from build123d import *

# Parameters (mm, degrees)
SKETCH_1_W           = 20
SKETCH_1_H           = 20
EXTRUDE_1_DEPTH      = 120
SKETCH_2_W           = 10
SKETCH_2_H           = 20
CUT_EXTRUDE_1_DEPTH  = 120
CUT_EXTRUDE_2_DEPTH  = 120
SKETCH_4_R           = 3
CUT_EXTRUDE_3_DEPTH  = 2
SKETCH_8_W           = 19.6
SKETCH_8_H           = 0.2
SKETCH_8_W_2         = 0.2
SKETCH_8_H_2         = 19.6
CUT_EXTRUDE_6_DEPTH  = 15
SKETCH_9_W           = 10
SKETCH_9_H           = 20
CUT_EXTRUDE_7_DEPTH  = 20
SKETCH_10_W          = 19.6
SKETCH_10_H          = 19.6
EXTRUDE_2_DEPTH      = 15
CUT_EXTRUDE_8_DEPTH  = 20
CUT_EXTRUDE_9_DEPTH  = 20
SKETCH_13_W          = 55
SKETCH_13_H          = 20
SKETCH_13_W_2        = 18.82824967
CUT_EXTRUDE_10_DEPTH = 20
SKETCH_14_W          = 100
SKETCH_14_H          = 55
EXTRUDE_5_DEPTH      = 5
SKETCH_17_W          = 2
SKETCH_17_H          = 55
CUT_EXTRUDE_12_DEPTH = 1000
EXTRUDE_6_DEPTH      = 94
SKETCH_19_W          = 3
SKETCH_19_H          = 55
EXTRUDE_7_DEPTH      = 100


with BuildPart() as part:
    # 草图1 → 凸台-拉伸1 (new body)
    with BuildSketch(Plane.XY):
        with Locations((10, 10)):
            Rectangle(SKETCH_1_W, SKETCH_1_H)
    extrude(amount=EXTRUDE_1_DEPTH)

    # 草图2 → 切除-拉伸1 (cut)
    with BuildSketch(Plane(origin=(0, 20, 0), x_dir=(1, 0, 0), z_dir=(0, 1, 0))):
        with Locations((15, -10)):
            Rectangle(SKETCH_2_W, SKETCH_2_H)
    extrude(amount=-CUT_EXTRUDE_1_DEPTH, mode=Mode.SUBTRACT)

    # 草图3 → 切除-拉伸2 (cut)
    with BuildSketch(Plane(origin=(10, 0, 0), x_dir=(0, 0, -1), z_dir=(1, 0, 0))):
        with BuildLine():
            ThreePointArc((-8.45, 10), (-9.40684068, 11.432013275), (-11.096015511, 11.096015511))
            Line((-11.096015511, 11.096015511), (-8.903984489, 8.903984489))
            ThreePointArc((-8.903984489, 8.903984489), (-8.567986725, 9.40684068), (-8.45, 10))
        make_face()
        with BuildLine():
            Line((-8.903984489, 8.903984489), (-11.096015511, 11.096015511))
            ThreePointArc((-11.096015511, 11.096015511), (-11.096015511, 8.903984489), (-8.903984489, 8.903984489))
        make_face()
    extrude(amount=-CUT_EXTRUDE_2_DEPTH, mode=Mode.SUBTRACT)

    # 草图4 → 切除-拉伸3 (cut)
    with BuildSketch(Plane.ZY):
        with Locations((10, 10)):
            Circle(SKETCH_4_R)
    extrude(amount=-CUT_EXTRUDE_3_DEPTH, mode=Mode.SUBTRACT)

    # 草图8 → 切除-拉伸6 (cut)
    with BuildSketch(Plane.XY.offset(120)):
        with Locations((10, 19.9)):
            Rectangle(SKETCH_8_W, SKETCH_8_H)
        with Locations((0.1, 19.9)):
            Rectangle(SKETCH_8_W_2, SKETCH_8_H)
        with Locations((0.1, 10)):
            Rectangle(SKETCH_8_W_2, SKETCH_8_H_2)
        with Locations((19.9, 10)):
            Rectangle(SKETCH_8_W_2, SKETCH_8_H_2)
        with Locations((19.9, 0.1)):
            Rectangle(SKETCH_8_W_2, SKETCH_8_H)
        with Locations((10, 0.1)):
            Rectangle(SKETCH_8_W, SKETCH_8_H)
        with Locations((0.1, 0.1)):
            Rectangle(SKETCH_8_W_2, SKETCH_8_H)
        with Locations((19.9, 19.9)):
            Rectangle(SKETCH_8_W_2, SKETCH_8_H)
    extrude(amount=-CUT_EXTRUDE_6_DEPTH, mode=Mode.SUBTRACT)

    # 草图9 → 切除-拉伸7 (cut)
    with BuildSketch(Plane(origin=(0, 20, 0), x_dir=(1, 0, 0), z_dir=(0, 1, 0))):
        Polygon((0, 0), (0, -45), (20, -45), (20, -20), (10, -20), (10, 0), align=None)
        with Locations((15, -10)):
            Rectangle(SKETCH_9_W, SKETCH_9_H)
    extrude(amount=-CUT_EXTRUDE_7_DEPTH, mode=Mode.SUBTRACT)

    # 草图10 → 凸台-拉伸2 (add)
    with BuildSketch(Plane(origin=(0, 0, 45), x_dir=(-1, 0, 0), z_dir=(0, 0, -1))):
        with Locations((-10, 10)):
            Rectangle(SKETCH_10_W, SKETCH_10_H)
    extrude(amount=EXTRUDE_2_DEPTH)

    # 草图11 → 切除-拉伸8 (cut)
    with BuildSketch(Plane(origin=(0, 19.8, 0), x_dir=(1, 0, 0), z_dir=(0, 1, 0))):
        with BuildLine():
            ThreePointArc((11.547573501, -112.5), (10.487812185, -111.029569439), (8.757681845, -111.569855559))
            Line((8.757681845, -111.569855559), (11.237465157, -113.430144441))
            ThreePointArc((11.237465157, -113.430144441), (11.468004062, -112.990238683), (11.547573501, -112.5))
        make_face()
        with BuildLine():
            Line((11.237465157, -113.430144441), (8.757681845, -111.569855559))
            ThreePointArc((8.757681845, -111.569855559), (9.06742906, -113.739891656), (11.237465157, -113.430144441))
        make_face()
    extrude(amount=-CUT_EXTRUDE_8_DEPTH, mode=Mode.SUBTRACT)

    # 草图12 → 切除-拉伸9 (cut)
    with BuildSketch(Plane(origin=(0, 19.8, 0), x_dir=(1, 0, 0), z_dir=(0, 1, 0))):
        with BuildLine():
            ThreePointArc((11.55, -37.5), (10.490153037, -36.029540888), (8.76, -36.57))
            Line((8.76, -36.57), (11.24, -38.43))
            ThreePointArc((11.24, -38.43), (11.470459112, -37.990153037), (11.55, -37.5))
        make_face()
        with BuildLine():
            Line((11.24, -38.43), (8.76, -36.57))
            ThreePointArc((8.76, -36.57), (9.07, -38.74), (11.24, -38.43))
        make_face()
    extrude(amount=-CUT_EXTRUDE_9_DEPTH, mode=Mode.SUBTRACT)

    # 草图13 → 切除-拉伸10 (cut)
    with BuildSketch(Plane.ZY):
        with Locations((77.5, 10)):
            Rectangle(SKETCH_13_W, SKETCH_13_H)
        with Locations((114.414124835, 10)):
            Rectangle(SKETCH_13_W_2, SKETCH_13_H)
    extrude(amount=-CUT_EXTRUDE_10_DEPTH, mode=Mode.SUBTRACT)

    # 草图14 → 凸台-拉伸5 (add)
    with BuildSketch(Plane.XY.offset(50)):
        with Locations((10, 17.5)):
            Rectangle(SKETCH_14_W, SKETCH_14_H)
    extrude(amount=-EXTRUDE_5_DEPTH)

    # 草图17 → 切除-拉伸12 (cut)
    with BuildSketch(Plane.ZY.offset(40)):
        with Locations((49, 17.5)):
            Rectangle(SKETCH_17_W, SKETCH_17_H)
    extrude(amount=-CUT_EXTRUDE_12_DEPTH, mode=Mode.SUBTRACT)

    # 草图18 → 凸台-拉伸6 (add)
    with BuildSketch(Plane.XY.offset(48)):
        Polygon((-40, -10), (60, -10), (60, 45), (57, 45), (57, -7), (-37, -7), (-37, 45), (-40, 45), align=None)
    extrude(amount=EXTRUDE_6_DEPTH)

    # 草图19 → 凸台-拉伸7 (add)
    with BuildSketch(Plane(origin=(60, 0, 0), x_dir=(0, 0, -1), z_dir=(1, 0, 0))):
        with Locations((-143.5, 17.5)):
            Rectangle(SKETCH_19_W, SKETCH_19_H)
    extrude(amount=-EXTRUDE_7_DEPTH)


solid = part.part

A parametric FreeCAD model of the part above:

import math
import FreeCAD as App
import Part
import Sketcher
from FreeCAD import Vector
Q = App.Units.Quantity


def add_polygon(sketch, points):
    """Adds a closed chain of lines whose ends are joined by coincident constraints."""
    first, n = sketch.GeometryCount, len(points)
    for a, b in zip(points, points[1:] + points[:1]):
        sketch.addGeometry(Part.LineSegment(App.Vector(*a, 0), App.Vector(*b, 0)), False)
    for i in range(n):
        sketch.addConstraint(Sketcher.Constraint("Coincident", first + i, 2, first + (i + 1) % n, 1))

doc = App.newDocument("Part")
params = doc.addObject("Spreadsheet::Sheet", "Params")
for row, (alias, value) in enumerate([
    ("sketch1_width", "20 mm"),
    ("pad1_length", "120 mm"),
    ("sketch2_width", "10 mm"),
    ("sketch2_height", "20 mm"),
    ("pocket1_length", "120 mm"),
    ("sketch3_radius", "1.55 mm"),
    ("pocket2_length", "120 mm"),
    ("sketch4_diameter", "6 mm"),
    ("pocket3_length", "2 mm"),
    ("sketch5_width", "20 mm"),
    ("sketch5_width2", "19.6 mm"),
    ("pocket4_length", "15 mm"),
    ("sketch6_width", "20 mm"),
    ("sketch6_height", "45 mm"),
    ("pocket5_length", "20 mm"),
    ("sketch7_width", "19.6 mm"),
    ("pad2_length", "15 mm"),
    ("sketch8_radius", "1.55 mm"),
    ("pocket6_length", "20 mm"),
    ("sketch9_radius", "1.55 mm"),
    ("pocket7_length", "20 mm"),
    ("sketch10_width", "20 mm"),
    ("pocket8_length", "20 mm"),
    ("sketch11_width", "100 mm"),
    ("sketch11_height", "55 mm"),
    ("pad3_length", "5 mm"),
    ("sketch12_width", "55 mm"),
    ("sketch12_height", "2 mm"),
    ("pocket9_length", "1000 mm"),
    ("sketch13_width", "100 mm"),
    ("sketch13_width2", "3 mm"),
    ("sketch13_height", "55 mm"),
    ("sketch13_height2", "52 mm"),
    ("pad4_length", "94 mm"),
    ("sketch14_width", "55 mm"),
    ("sketch14_height", "3 mm"),
    ("pad5_length", "100 mm"),
], start=1):
    params.set(f"A{row}", alias)
    params.set(f"B{row}", "=" + value)
    params.setAlias(f"B{row}", alias)

body = doc.addObject("PartDesign::Body", "Body")

# Sketch on XY plane
sketch1 = doc.addObject("Sketcher::SketchObject", "Sketch")
body.addObject(sketch1)
sketch1.AttachmentSupport = (doc.XY_Plane, [""])
sketch1.MapMode = "FlatFace"
add_polygon(sketch1, [(0, 20), (0, 0), (20, 0), (20, 20)])  # lines 0-3
sketch1.addConstraint([
    Sketcher.Constraint("Vertical", 0),
    Sketcher.Constraint("Horizontal", 1),
    Sketcher.Constraint("Vertical", 2),
    Sketcher.Constraint("Horizontal", 3),
    Sketcher.Constraint("Coincident", 0, 2, -1, 1),
    Sketcher.Constraint("Equal", 3, 0),
    Sketcher.Constraint("DistanceX", 1, 1, 1, 2, Q("20 mm")),
])
sketch1.setExpression("Constraints[10]", "Params.sketch1_width")
pad1 = doc.addObject("PartDesign::Pad", "Pad")
body.addObject(pad1)
pad1.Profile = sketch1
pad1.setExpression("Length", "Params.pad1_length")

# Sketch on XZ plane
sketch2 = doc.addObject("Sketcher::SketchObject", "Sketch001")
body.addObject(sketch2)
sketch2.AttachmentSupport = (doc.XZ_Plane, [""])
sketch2.MapMode = "FlatFace"
sketch2.AttachmentOffset = App.Placement(Vector(0, 0, -20), App.Rotation())
add_polygon(sketch2, [(10, 0), (10, 20), (20, 20), (20, 0)])  # lines 0-3
sketch2.addConstraint([
    Sketcher.Constraint("Vertical", 0),
    Sketcher.Constraint("Horizontal", 1),
    Sketcher.Constraint("Vertical", 2),
    Sketcher.Constraint("Horizontal", 3),
    Sketcher.Constraint("PointOnObject", 2, 2, -1),
    Sketcher.Constraint("DistanceX", 1, 1, 1, 2, Q("10 mm")),
    Sketcher.Constraint("DistanceY", 0, 1, 0, 2, Q("20 mm")),
    Sketcher.Constraint("DistanceX", -1, 1, 0, 2, Q("10 mm")),
])
sketch2.setExpression("Constraints[9]", "Params.sketch2_width")
sketch2.setExpression("Constraints[10]", "Params.sketch2_height")
pocket1 = doc.addObject("PartDesign::Pocket", "Pocket")
body.addObject(pocket1)
pocket1.Profile = sketch2
pocket1.setExpression("Length", "Params.pocket1_length")
pocket1.Reversed = True

# Sketch on YZ plane
sketch3 = doc.addObject("Sketcher::SketchObject", "Sketch002")
body.addObject(sketch3)
sketch3.AttachmentSupport = (doc.YZ_Plane, [""])
sketch3.MapMode = "FlatFace"
sketch3.AttachmentOffset = App.Placement(Vector(0, 0, 10), App.Rotation())
sketch3.addGeometry([
    Part.ArcOfCircle(Part.Circle(Vector(10, 10, 0), Vector(0, 0, 1), 1.6), math.radians(-90), math.radians(45)),
    Part.ArcOfCircle(Part.Circle(Vector(10, 10, 0), Vector(0, 0, 1), 1.6), math.radians(45), math.radians(225)),
    Part.ArcOfCircle(Part.Circle(Vector(10, 10, 0), Vector(0, 0, 1), 1.6), math.radians(-135), math.radians(-90)),
], False)
sketch3.addConstraint([
    Sketcher.Constraint("Tangent", 0, 2, 1, 1),
    Sketcher.Constraint("Tangent", 1, 2, 2, 1),
    Sketcher.Constraint("Tangent", 2, 2, 0, 1),
    Sketcher.Constraint("Vertical", 1, 3, 2, 2),
    Sketcher.Constraint("Radius", 0, Q("1.55 mm")),
    Sketcher.Constraint("DistanceX", -1, 1, 0, 3, Q("10 mm")),
    Sketcher.Constraint("DistanceY", -1, 1, 0, 3, Q("10 mm")),
    Sketcher.Constraint("DistanceX", 1, 2, 0, 2, Q("2.192031 mm")),
    Sketcher.Constraint("DistanceX", -1, 1, 0, 2, Q("11.096016 mm")),
])
sketch3.setExpression("Constraints[4]", "Params.sketch3_radius")
pocket2 = doc.addObject("PartDesign::Pocket", "Pocket001")
body.addObject(pocket2)
pocket2.Profile = sketch3
pocket2.setExpression("Length", "Params.pocket2_length")

# Sketch on YZ plane
sketch4 = doc.addObject("Sketcher::SketchObject", "Sketch003")
body.addObject(sketch4)
sketch4.AttachmentSupport = (doc.YZ_Plane, [""])
sketch4.MapMode = "FlatFace"
sketch4.addGeometry(Part.Circle(Vector(10, 10, 0), Vector(0, 0, 1), 3), False)
sketch4.addConstraint([
    Sketcher.Constraint("Diameter", 0, Q("6 mm")),
    Sketcher.Constraint("DistanceX", -1, 1, 0, 3, Q("10 mm")),
    Sketcher.Constraint("DistanceY", -1, 1, 0, 3, Q("10 mm")),
])
sketch4.setExpression("Constraints[0]", "Params.sketch4_diameter")
pocket3 = doc.addObject("PartDesign::Pocket", "Pocket002")
body.addObject(pocket3)
pocket3.Profile = sketch4
pocket3.setExpression("Length", "Params.pocket3_length")
pocket3.Reversed = True

# Sketch on XY plane
sketch5 = doc.addObject("Sketcher::SketchObject", "Sketch004")
body.addObject(sketch5)
sketch5.AttachmentSupport = (doc.XY_Plane, [""])
sketch5.MapMode = "FlatFace"
sketch5.AttachmentOffset = App.Placement(Vector(0, 0, 120), App.Rotation())
add_polygon(sketch5, [(20, 0), (20, 20), (0, 20), (0, 0)])  # lines 0-3
add_polygon(sketch5, [(0, 20), (20, 20), (20, 0), (0, 0)])  # lines 4-7
sketch5.addConstraint([
    Sketcher.Constraint("Vertical", 0),
    Sketcher.Constraint("Horizontal", 1),
    Sketcher.Constraint("Vertical", 2),
    Sketcher.Constraint("Horizontal", 3),
    Sketcher.Constraint("Horizontal", 4),
    Sketcher.Constraint("Vertical", 5),
    Sketcher.Constraint("Horizontal", 6),
    Sketcher.Constraint("Vertical", 7),
    Sketcher.Constraint("Coincident", 2, 2, -1, 1),
    Sketcher.Constraint("Equal", 3, 0),
    Sketcher.Constraint("Equal", 6, 5),
    Sketcher.Constraint("DistanceX", 1, 2, 1, 1, Q("20 mm")),
    Sketcher.Constraint("DistanceX", 4, 1, 4, 2, Q("19.6 mm")),
    Sketcher.Constraint("DistanceX", -1, 1, 4, 2, Q("19.8 mm")),
    Sketcher.Constraint("DistanceY", -1, 1, 4, 2, Q("19.8 mm")),
])
sketch5.setExpression("Constraints[19]", "Params.sketch5_width")
sketch5.setExpression("Constraints[20]", "Params.sketch5_width2")
pocket4 = doc.addObject("PartDesign::Pocket", "Pocket003")
body.addObject(pocket4)
pocket4.Profile = sketch5
pocket4.setExpression("Length", "Params.pocket4_length")

# Sketch on XZ plane
sketch6 = doc.addObject("Sketcher::SketchObject", "Sketch005")
body.addObject(sketch6)
sketch6.AttachmentSupport = (doc.XZ_Plane, [""])
sketch6.MapMode = "FlatFace"
sketch6.AttachmentOffset = App.Placement(Vector(0, 0, -20), App.Rotation())
add_polygon(sketch6, [(0, 0), (0, 45), (20, 45), (20, 0)])  # lines 0-3
sketch6.addConstraint([
    Sketcher.Constraint("Vertical", 0),
    Sketcher.Constraint("Horizontal", 1),
    Sketcher.Constraint("Vertical", 2),
    Sketcher.Constraint("Horizontal", 3),
    Sketcher.Constraint("Coincident", 3, 2, -1, 1),
    Sketcher.Constraint("DistanceX", 1, 1, 1, 2, Q("20 mm")),
    Sketcher.Constraint("DistanceY", 0, 1, 0, 2, Q("45 mm")),
])
sketch6.setExpression("Constraints[9]", "Params.sketch6_width")
sketch6.setExpression("Constraints[10]", "Params.sketch6_height")
pocket5 = doc.addObject("PartDesign::Pocket", "Pocket004")
body.addObject(pocket5)
pocket5.Profile = sketch6
pocket5.setExpression("Length", "Params.pocket5_length")
pocket5.Reversed = True

# Sketch on XY plane
sketch7 = doc.addObject("Sketcher::SketchObject", "Sketch006")
body.addObject(sketch7)
sketch7.AttachmentSupport = (doc.XY_Plane, [""])
sketch7.MapMode = "FlatFace"
sketch7.AttachmentOffset = App.Placement(Vector(0, 0, 45), App.Rotation())
add_polygon(sketch7, [(20, 20), (20, 0), (0, 0), (0, 20)])  # lines 0-3
sketch7.addConstraint([
    Sketcher.Constraint("Vertical", 0),
    Sketcher.Constraint("Horizontal", 1),
    Sketcher.Constraint("Vertical", 2),
    Sketcher.Constraint("Horizontal", 3),
    Sketcher.Constraint("Equal", 3, 0),
    Sketcher.Constraint("DistanceX", 1, 2, 1, 1, Q("19.6 mm")),
    Sketcher.Constraint("DistanceX", -1, 1, 0, 2, Q("19.8 mm")),
    Sketcher.Constraint("DistanceY", -1, 1, 0, 2, Q("0.2 mm")),
])
sketch7.setExpression("Constraints[9]", "Params.sketch7_width")
pad2 = doc.addObject("PartDesign::Pad", "Pad001")
body.addObject(pad2)
pad2.Profile = sketch7
pad2.setExpression("Length", "Params.pad2_length")
pad2.Reversed = True

# Sketch on XZ plane
sketch8 = doc.addObject("Sketcher::SketchObject", "Sketch007")
body.addObject(sketch8)
sketch8.AttachmentSupport = (doc.XZ_Plane, [""])
sketch8.MapMode = "FlatFace"
sketch8.AttachmentOffset = App.Placement(Vector(0, 0, -19.8), App.Rotation())
sketch8.addGeometry([
    Part.ArcOfCircle(Part.Circle(Vector(10, 112.5, 0), Vector(0, 0, 1), 1.6), math.radians(-143), math.radians(0)),
    Part.ArcOfCircle(Part.Circle(Vector(10, 112.5, 0), Vector(0, 0, 1), 1.6), math.radians(37), math.radians(217)),
    Part.ArcOfCircle(Part.Circle(Vector(10, 112.5, 0), Vector(0, 0, 1), 1.5), math.radians(0), math.radians(37)),
], False)
sketch8.addConstraint([
    Sketcher.Constraint("Tangent", 0, 1, 1, 2),
    Sketcher.Constraint("Tangent", 1, 1, 2, 2),
    Sketcher.Constraint("Tangent", 2, 1, 0, 2),
    Sketcher.Constraint("Horizontal", 1, 3, 2, 1),
    Sketcher.Constraint("Radius", 0, Q("1.55 mm")),
    Sketcher.Constraint("DistanceY", -1, 1, 0, 3, Q("112.5 mm")),
    Sketcher.Constraint("DistanceX", -1, 1, 0, 1, Q("8.757682 mm")),
    Sketcher.Constraint("DistanceX", 0, 1, 0, 3, Q("1.239892 mm")),
    Sketcher.Constraint("DistanceX", 2, 3, 1, 1, Q("1.239892 mm")),
])
sketch8.setExpression("Constraints[4]", "Params.sketch8_radius")
pocket6 = doc.addObject("PartDesign::Pocket", "Pocket005")
body.addObject(pocket6)
pocket6.Profile = sketch8
pocket6.setExpression("Length", "Params.pocket6_length")
pocket6.Reversed = True

# Sketch on XZ plane
sketch9 = doc.addObject("Sketcher::SketchObject", "Sketch008")
body.addObject(sketch9)
sketch9.AttachmentSupport = (doc.XZ_Plane, [""])
sketch9.MapMode = "FlatFace"
sketch9.AttachmentOffset = App.Placement(Vector(0, 0, -19.8), App.Rotation())
sketch9.addGeometry([
    Part.ArcOfCircle(Part.Circle(Vector(10, 37.5, 0), Vector(0, 0, 1), 1.6), math.radians(-143), math.radians(0)),
    Part.ArcOfCircle(Part.Circle(Vector(10, 37.5, 0), Vector(0, 0, 1), 1.6), math.radians(37), math.radians(217)),
    Part.ArcOfCircle(Part.Circle(Vector(10, 37.5, 0), Vector(0, 0, 1), 1.6), math.radians(0), math.radians(37)),
], False)
sketch9.addConstraint([
    Sketcher.Constraint("Tangent", 0, 1, 1, 2),
    Sketcher.Constraint("Tangent", 1, 1, 2, 2),
    Sketcher.Constraint("Tangent", 2, 1, 0, 2),
    Sketcher.Constraint("Horizontal", 1, 3, 2, 1),
    Sketcher.Constraint("Radius", 0, Q("1.55 mm")),
    Sketcher.Constraint("DistanceX", -1, 1, 0, 3, Q("10 mm")),
    Sketcher.Constraint("DistanceY", -1, 1, 0, 3, Q("37.5 mm")),
    Sketcher.Constraint("DistanceX", -1, 1, 0, 1, Q("8.76 mm")),
    Sketcher.Constraint("DistanceX", -1, 1, 1, 1, Q("11.24 mm")),
])
sketch9.setExpression("Constraints[4]", "Params.sketch9_radius")
pocket7 = doc.addObject("PartDesign::Pocket", "Pocket006")
body.addObject(pocket7)
pocket7.Profile = sketch9
pocket7.setExpression("Length", "Params.pocket7_length")
pocket7.Reversed = True

# Sketch on YZ plane
sketch10 = doc.addObject("Sketcher::SketchObject", "Sketch009")
body.addObject(sketch10)
sketch10.AttachmentSupport = (doc.YZ_Plane, [""])
sketch10.MapMode = "FlatFace"
add_polygon(sketch10, [(20, 50), (0, 50), (0, 124), (20, 124)])  # lines 0-3
sketch10.addConstraint([
    Sketcher.Constraint("Horizontal", 0),
    Sketcher.Constraint("Vertical", 1),
    Sketcher.Constraint("Horizontal", 2),
    Sketcher.Constraint("Vertical", 3),
    Sketcher.Constraint("PointOnObject", 0, 2, -2),
    Sketcher.Constraint("DistanceX", 0, 2, 0, 1, Q("20 mm")),
    Sketcher.Constraint("DistanceY", -1, 1, 0, 2, Q("50 mm")),
    Sketcher.Constraint("DistanceY", 1, 1, 1, 2, Q("73.82825 mm")),
])
sketch10.setExpression("Constraints[9]", "Params.sketch10_width")
pocket8 = doc.addObject("PartDesign::Pocket", "Pocket007")
body.addObject(pocket8)
pocket8.Profile = sketch10
pocket8.setExpression("Length", "Params.pocket8_length")
pocket8.Reversed = True

# Sketch on XY plane
sketch11 = doc.addObject("Sketcher::SketchObject", "Sketch010")
body.addObject(sketch11)
sketch11.AttachmentSupport = (doc.XY_Plane, [""])
sketch11.MapMode = "FlatFace"
sketch11.AttachmentOffset = App.Placement(Vector(0, 0, 50), App.Rotation())
add_polygon(sketch11, [(-40, 45), (-40, -10), (60, -10), (60, 45)])  # lines 0-3
sketch11.addConstraint([
    Sketcher.Constraint("Vertical", 0),
    Sketcher.Constraint("Horizontal", 1),
    Sketcher.Constraint("Vertical", 2),
    Sketcher.Constraint("Horizontal", 3),
    Sketcher.Constraint("DistanceX", 1, 1, 1, 2, Q("100 mm")),
    Sketcher.Constraint("DistanceY", 0, 2, 0, 1, Q("55 mm")),
    Sketcher.Constraint("DistanceX", 0, 2, -1, 1, Q("40 mm")),
    Sketcher.Constraint("DistanceY", 0, 2, -1, 1, Q("10 mm")),
])
sketch11.setExpression("Constraints[8]", "Params.sketch11_width")
sketch11.setExpression("Constraints[9]", "Params.sketch11_height")
pad3 = doc.addObject("PartDesign::Pad", "Pad002")
body.addObject(pad3)
pad3.Profile = sketch11
pad3.setExpression("Length", "Params.pad3_length")
pad3.Reversed = True

# Sketch on YZ plane
sketch12 = doc.addObject("Sketcher::SketchObject", "Sketch011")
body.addObject(sketch12)
sketch12.AttachmentSupport = (doc.YZ_Plane, [""])
sketch12.MapMode = "FlatFace"
sketch12.AttachmentOffset = App.Placement(Vector(0, 0, -40), App.Rotation())
add_polygon(sketch12, [(45, 48), (-10, 48), (-10, 50), (45, 50)])  # lines 0-3
sketch12.addConstraint([
    Sketcher.Constraint("Horizontal", 0),
    Sketcher.Constraint("Vertical", 1),
    Sketcher.Constraint("Horizontal", 2),
    Sketcher.Constraint("Vertical", 3),
    Sketcher.Constraint("DistanceX", 0, 2, 0, 1, Q("55 mm")),
    Sketcher.Constraint("DistanceY", 1, 1, 1, 2, Q("2 mm")),
    Sketcher.Constraint("DistanceX", 0, 2, -1, 1, Q("10 mm")),
    Sketcher.Constraint("DistanceY", -1, 1, 0, 2, Q("48 mm")),
])
sketch12.setExpression("Constraints[8]", "Params.sketch12_width")
sketch12.setExpression("Constraints[9]", "Params.sketch12_height")
pocket9 = doc.addObject("PartDesign::Pocket", "Pocket008")
body.addObject(pocket9)
pocket9.Profile = sketch12
pocket9.setExpression("Length", "Params.pocket9_length")
pocket9.Reversed = True

# Sketch on XY plane
sketch13 = doc.addObject("Sketcher::SketchObject", "Sketch012")
body.addObject(sketch13)
sketch13.AttachmentSupport = (doc.XY_Plane, [""])
sketch13.MapMode = "FlatFace"
sketch13.AttachmentOffset = App.Placement(Vector(0, 0, 48), App.Rotation())
add_polygon(sketch13, [(-40, -10), (60, -10), (60, 45), (57, 45), (57, -7), (-37, -7), (-37, 45), (-40, 45)])  # lines 0-7
sketch13.addConstraint([
    Sketcher.Constraint("Horizontal", 0),
    Sketcher.Constraint("Vertical", 1),
    Sketcher.Constraint("Horizontal", 2),
    Sketcher.Constraint("Vertical", 3),
    Sketcher.Constraint("Horizontal", 4),
    Sketcher.Constraint("Vertical", 5),
    Sketcher.Constraint("Horizontal", 6),
    Sketcher.Constraint("Vertical", 7),
    Sketcher.Constraint("Horizontal", 2, 2, 5, 2),
    Sketcher.Constraint("Equal", 2, 6),
    Sketcher.Constraint("DistanceX", 0, 1, 0, 2, Q("100 mm")),
    Sketcher.Constraint("DistanceX", 2, 2, 2, 1, Q("3 mm")),
    Sketcher.Constraint("DistanceY", 1, 1, 1, 2, Q("55 mm")),
    Sketcher.Constraint("DistanceY", 3, 2, 3, 1, Q("52 mm")),
    Sketcher.Constraint("DistanceX", -1, 1, 0, 2, Q("60 mm")),
    Sketcher.Constraint("DistanceY", 0, 2, -1, 1, Q("10 mm")),
])
sketch13.setExpression("Constraints[18]", "Params.sketch13_width")
sketch13.setExpression("Constraints[19]", "Params.sketch13_width2")
sketch13.setExpression("Constraints[20]", "Params.sketch13_height")
sketch13.setExpression("Constraints[21]", "Params.sketch13_height2")
pad4 = doc.addObject("PartDesign::Pad", "Pad003")
body.addObject(pad4)
pad4.Profile = sketch13
pad4.setExpression("Length", "Params.pad4_length")

# Sketch on YZ plane
sketch14 = doc.addObject("Sketcher::SketchObject", "Sketch013")
body.addObject(sketch14)
sketch14.AttachmentSupport = (doc.YZ_Plane, [""])
sketch14.MapMode = "FlatFace"
sketch14.AttachmentOffset = App.Placement(Vector(0, 0, 60), App.Rotation())
add_polygon(sketch14, [(45, 145), (-10, 145), (-10, 142), (45, 142)])  # lines 0-3
sketch14.addConstraint([
    Sketcher.Constraint("Horizontal", 0),
    Sketcher.Constraint("Vertical", 1),
    Sketcher.Constraint("Horizontal", 2),
    Sketcher.Constraint("Vertical", 3),
    Sketcher.Constraint("DistanceX", 0, 2, 0, 1, Q("55 mm")),
    Sketcher.Constraint("DistanceY", 1, 2, 1, 1, Q("3 mm")),
    Sketcher.Constraint("DistanceX", 0, 2, -1, 1, Q("10 mm")),
    Sketcher.Constraint("DistanceY", -1, 1, 0, 2, Q("145 mm")),
])
sketch14.setExpression("Constraints[8]", "Params.sketch14_width")
sketch14.setExpression("Constraints[9]", "Params.sketch14_height")
pad5 = doc.addObject("PartDesign::Pad", "Pad004")
body.addObject(pad5)
pad5.Profile = sketch14
pad5.setExpression("Length", "Params.pad5_length")
pad5.Reversed = True

doc.recompute()
